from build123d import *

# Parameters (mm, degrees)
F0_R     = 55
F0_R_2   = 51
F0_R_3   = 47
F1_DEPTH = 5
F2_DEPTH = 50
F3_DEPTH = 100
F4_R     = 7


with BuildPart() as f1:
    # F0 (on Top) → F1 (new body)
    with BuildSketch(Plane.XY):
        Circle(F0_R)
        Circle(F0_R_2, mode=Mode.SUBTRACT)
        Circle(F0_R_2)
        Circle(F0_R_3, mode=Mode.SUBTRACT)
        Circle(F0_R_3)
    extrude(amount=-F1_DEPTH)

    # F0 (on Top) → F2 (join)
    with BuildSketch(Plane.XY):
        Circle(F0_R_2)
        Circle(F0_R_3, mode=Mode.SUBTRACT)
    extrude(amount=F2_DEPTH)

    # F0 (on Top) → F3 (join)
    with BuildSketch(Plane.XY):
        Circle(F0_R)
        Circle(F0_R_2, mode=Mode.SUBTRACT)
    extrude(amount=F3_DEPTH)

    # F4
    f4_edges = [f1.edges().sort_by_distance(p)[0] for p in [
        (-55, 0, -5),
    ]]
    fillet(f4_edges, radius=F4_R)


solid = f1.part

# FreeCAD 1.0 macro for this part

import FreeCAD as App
import Part
import Sketcher
Q = App.Units.Quantity


def edges_at(feature, points):
    """Names of the edges that pass closest to the given points."""
    edges = feature.Shape.Edges
    near = lambda p: min(range(len(edges)), key=lambda i: edges[i].distToShape(Part.Vertex(*p))[0])
    return sorted({f"Edge{near(p) + 1}" for p in points})

doc = App.newDocument("Part")
body = doc.addObject("PartDesign::Body", "Body")

sketch1 = doc.addObject("Sketcher::SketchObject", "Sketch")
body.addObject(sketch1)
sketch1.AttachmentSupport = (doc.XY_Plane, [""])
sketch1.MapMode = "FlatFace"
sketch1.addGeometry(Part.Circle(App.Vector(0, 0, 0), App.Vector(0, 0, 1), 55), False)
sketch1.addConstraint([
    Sketcher.Constraint("Coincident", 0, 3, -1, 1),
    Sketcher.Constraint("Diameter", 0, Q("110 mm")),
])
pad1 = doc.addObject("PartDesign::Pad", "Pad")
body.addObject(pad1)
pad1.Profile = sketch1
pad1.Length = 5
pad1.Reversed = True

sketch2 = doc.addObject("Sketcher::SketchObject", "Sketch001")
body.addObject(sketch2)
sketch2.AttachmentSupport = (doc.XY_Plane, [""])
sketch2.MapMode = "FlatFace"
sketch2.addGeometry([
    Part.Circle(App.Vector(0, 0, 0), App.Vector(0, 0, 1), 51),
    Part.Circle(App.Vector(0, 0, 0), App.Vector(0, 0, 1), 47),
], False)
sketch2.addConstraint([
    Sketcher.Constraint("Coincident", 0, 3, -1, 1),
    Sketcher.Constraint("Coincident", 1, 3, -1, 1),
    Sketcher.Constraint("Diameter", 0, Q("102 mm")),
    Sketcher.Constraint("Diameter", 1, Q("94 mm")),
])
pad2 = doc.addObject("PartDesign::Pad", "Pad001")
body.addObject(pad2)
pad2.Profile = sketch2
pad2.Length = 50

sketch3 = doc.addObject("Sketcher::SketchObject", "Sketch002")
body.addObject(sketch3)
sketch3.AttachmentSupport = (doc.XY_Plane, [""])
sketch3.MapMode = "FlatFace"
sketch3.addGeometry([
    Part.Circle(App.Vector(0, 0, 0), App.Vector(0, 0, 1), 55),
    Part.Circle(App.Vector(0, 0, 0), App.Vector(0, 0, 1), 51),
], False)
sketch3.addConstraint([
    Sketcher.Constraint("Coincident", 0, 3, -1, 1),
    Sketcher.Constraint("Coincident", 1, 3, -1, 1),
    Sketcher.Constraint("Diameter", 0, Q("110 mm")),
    Sketcher.Constraint("Diameter", 1, Q("102 mm")),
])
pad3 = doc.addObject("PartDesign::Pad", "Pad002")
body.addObject(pad3)
pad3.Profile = sketch3
pad3.Length = 100
doc.recompute()

fillet = doc.addObject("PartDesign::Fillet", "Fillet")
body.addObject(fillet)
fillet.Base = (pad3, edges_at(pad3, [(-55, 0, -5)]))
fillet.Radius = 7

doc.recompute()
